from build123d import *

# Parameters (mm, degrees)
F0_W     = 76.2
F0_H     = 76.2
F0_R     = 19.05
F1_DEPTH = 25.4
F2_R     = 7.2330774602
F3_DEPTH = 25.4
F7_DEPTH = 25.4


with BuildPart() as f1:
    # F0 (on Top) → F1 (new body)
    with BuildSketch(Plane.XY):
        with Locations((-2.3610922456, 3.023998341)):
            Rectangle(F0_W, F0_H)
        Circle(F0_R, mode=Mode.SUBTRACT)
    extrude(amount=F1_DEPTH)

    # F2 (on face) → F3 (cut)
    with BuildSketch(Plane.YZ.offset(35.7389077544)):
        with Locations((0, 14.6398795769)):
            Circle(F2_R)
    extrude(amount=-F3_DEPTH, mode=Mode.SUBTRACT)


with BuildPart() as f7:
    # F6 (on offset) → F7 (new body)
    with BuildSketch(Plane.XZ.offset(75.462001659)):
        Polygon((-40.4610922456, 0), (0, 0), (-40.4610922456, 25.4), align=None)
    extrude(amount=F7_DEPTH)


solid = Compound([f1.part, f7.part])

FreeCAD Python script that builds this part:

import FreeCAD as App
import Part
import Sketcher

V = App.Vector
Q = App.Units.Quantity

doc = App.newDocument("Part")
body = doc.addObject("PartDesign::Body", "Body")

# Sketch on XY plane
sketch1 = doc.addObject("Sketcher::SketchObject", "Sketch")
body.addObject(sketch1)
sketch1.AttachmentSupport = (doc.XY_Plane, [""])
sketch1.MapMode = "FlatFace"
sketch1.addGeometry([
    Part.LineSegment(V(-40.461092, 41.123998, 0), V(-40.461092, -35.076002, 0)),  # 0
    Part.LineSegment(V(-40.461092, -35.076002, 0), V(35.738908, -35.076002, 0)),  # 1
    Part.LineSegment(V(35.738908, -35.076002, 0), V(35.738908, 41.123998, 0)),  # 2
    Part.LineSegment(V(35.738908, 41.123998, 0), V(-40.461092, 41.123998, 0)),  # 3
    Part.Circle(V(0, 0, 0), V(0, 0, 1), 19.05),  # 4
], False)
sketch1.addConstraint([
    Sketcher.Constraint("Coincident", 0, 2, 1, 1),
    Sketcher.Constraint("Coincident", 1, 2, 2, 1),
    Sketcher.Constraint("Coincident", 2, 2, 3, 1),
    Sketcher.Constraint("Coincident", 3, 2, 0, 1),
    Sketcher.Constraint("Vertical", 0),
    Sketcher.Constraint("Horizontal", 1),
    Sketcher.Constraint("Vertical", 2),
    Sketcher.Constraint("Horizontal", 3),
    Sketcher.Constraint("Coincident", 4, 3, -1, 1),
    Sketcher.Constraint("Equal", 3, 0),
    Sketcher.Constraint("Diameter", 4, Q("1.5 in")),
    Sketcher.Constraint("DistanceX", 1, 1, 1, 2, Q("3 in")),
    Sketcher.Constraint("DistanceY", 0, 2, -1, 1, 35.076002),
    Sketcher.Constraint("DistanceX", 0, 2, -1, 1, 40.461092),
])
pad1 = doc.addObject("PartDesign::Pad", "Pad")
body.addObject(pad1)
pad1.Profile = sketch1
pad1.Length = Q("1 in")

# Sketch on YZ plane
sketch2 = doc.addObject("Sketcher::SketchObject", "Sketch001")
body.addObject(sketch2)
sketch2.AttachmentSupport = (doc.YZ_Plane, [""])
sketch2.MapMode = "FlatFace"
sketch2.AttachmentOffset = App.Placement(V(0, 0, 35.738908), App.Rotation())
sketch2.addGeometry(Part.Circle(V(0, 14.63988, 0), V(0, 0, 1), 7.233077), False)
sketch2.addConstraint([
    Sketcher.Constraint("PointOnObject", 0, 3, -2),
    Sketcher.Constraint("Diameter", 0, 14.466155),
    Sketcher.Constraint("DistanceY", -1, 1, 0, 3, 14.63988),
])
pocket1 = doc.addObject("PartDesign::Pocket", "Pocket")
body.addObject(pocket1)
pocket1.Profile = sketch2
pocket1.Length = Q("1 in")
body2 = doc.addObject("PartDesign::Body", "Body001")

# Sketch on XZ plane
sketch3 = doc.addObject("Sketcher::SketchObject", "Sketch002")
body2.addObject(sketch3)
sketch3.AttachmentSupport = (doc.getObject("XZ_Plane001"), [""])
sketch3.MapMode = "FlatFace"
sketch3.AttachmentOffset = App.Placement(V(0, 0, 75.462002), App.Rotation())
sketch3.addGeometry([
    Part.LineSegment(V(-40.461092, 0, 0), V(0, 0, 0)),
    Part.LineSegment(V(0, 0, 0), V(-40.461092, 25.4, 0)),
    Part.LineSegment(V(-40.461092, 25.4, 0), V(-40.461092, 0, 0)),
], False)
sketch3.addConstraint([
    Sketcher.Constraint("Coincident", 0, 2, 1, 1),
    Sketcher.Constraint("Coincident", 1, 2, 2, 1),
    Sketcher.Constraint("Coincident", 2, 2, 0, 1),
    Sketcher.Constraint("Horizontal", 0),
    Sketcher.Constraint("Vertical", 2),
    Sketcher.Constraint("Coincident", 0, 2, -1, 1),
    Sketcher.Constraint("DistanceY", 2, 2, 2, 1, Q("1 in")),
    Sketcher.Constraint("DistanceX", 0, 1, 0, 2, 40.461092),
])
pad2 = doc.addObject("PartDesign::Pad", "Pad001")
body2.addObject(pad2)
pad2.Profile = sketch3
pad2.Length = Q("1 in")

doc.recompute()
